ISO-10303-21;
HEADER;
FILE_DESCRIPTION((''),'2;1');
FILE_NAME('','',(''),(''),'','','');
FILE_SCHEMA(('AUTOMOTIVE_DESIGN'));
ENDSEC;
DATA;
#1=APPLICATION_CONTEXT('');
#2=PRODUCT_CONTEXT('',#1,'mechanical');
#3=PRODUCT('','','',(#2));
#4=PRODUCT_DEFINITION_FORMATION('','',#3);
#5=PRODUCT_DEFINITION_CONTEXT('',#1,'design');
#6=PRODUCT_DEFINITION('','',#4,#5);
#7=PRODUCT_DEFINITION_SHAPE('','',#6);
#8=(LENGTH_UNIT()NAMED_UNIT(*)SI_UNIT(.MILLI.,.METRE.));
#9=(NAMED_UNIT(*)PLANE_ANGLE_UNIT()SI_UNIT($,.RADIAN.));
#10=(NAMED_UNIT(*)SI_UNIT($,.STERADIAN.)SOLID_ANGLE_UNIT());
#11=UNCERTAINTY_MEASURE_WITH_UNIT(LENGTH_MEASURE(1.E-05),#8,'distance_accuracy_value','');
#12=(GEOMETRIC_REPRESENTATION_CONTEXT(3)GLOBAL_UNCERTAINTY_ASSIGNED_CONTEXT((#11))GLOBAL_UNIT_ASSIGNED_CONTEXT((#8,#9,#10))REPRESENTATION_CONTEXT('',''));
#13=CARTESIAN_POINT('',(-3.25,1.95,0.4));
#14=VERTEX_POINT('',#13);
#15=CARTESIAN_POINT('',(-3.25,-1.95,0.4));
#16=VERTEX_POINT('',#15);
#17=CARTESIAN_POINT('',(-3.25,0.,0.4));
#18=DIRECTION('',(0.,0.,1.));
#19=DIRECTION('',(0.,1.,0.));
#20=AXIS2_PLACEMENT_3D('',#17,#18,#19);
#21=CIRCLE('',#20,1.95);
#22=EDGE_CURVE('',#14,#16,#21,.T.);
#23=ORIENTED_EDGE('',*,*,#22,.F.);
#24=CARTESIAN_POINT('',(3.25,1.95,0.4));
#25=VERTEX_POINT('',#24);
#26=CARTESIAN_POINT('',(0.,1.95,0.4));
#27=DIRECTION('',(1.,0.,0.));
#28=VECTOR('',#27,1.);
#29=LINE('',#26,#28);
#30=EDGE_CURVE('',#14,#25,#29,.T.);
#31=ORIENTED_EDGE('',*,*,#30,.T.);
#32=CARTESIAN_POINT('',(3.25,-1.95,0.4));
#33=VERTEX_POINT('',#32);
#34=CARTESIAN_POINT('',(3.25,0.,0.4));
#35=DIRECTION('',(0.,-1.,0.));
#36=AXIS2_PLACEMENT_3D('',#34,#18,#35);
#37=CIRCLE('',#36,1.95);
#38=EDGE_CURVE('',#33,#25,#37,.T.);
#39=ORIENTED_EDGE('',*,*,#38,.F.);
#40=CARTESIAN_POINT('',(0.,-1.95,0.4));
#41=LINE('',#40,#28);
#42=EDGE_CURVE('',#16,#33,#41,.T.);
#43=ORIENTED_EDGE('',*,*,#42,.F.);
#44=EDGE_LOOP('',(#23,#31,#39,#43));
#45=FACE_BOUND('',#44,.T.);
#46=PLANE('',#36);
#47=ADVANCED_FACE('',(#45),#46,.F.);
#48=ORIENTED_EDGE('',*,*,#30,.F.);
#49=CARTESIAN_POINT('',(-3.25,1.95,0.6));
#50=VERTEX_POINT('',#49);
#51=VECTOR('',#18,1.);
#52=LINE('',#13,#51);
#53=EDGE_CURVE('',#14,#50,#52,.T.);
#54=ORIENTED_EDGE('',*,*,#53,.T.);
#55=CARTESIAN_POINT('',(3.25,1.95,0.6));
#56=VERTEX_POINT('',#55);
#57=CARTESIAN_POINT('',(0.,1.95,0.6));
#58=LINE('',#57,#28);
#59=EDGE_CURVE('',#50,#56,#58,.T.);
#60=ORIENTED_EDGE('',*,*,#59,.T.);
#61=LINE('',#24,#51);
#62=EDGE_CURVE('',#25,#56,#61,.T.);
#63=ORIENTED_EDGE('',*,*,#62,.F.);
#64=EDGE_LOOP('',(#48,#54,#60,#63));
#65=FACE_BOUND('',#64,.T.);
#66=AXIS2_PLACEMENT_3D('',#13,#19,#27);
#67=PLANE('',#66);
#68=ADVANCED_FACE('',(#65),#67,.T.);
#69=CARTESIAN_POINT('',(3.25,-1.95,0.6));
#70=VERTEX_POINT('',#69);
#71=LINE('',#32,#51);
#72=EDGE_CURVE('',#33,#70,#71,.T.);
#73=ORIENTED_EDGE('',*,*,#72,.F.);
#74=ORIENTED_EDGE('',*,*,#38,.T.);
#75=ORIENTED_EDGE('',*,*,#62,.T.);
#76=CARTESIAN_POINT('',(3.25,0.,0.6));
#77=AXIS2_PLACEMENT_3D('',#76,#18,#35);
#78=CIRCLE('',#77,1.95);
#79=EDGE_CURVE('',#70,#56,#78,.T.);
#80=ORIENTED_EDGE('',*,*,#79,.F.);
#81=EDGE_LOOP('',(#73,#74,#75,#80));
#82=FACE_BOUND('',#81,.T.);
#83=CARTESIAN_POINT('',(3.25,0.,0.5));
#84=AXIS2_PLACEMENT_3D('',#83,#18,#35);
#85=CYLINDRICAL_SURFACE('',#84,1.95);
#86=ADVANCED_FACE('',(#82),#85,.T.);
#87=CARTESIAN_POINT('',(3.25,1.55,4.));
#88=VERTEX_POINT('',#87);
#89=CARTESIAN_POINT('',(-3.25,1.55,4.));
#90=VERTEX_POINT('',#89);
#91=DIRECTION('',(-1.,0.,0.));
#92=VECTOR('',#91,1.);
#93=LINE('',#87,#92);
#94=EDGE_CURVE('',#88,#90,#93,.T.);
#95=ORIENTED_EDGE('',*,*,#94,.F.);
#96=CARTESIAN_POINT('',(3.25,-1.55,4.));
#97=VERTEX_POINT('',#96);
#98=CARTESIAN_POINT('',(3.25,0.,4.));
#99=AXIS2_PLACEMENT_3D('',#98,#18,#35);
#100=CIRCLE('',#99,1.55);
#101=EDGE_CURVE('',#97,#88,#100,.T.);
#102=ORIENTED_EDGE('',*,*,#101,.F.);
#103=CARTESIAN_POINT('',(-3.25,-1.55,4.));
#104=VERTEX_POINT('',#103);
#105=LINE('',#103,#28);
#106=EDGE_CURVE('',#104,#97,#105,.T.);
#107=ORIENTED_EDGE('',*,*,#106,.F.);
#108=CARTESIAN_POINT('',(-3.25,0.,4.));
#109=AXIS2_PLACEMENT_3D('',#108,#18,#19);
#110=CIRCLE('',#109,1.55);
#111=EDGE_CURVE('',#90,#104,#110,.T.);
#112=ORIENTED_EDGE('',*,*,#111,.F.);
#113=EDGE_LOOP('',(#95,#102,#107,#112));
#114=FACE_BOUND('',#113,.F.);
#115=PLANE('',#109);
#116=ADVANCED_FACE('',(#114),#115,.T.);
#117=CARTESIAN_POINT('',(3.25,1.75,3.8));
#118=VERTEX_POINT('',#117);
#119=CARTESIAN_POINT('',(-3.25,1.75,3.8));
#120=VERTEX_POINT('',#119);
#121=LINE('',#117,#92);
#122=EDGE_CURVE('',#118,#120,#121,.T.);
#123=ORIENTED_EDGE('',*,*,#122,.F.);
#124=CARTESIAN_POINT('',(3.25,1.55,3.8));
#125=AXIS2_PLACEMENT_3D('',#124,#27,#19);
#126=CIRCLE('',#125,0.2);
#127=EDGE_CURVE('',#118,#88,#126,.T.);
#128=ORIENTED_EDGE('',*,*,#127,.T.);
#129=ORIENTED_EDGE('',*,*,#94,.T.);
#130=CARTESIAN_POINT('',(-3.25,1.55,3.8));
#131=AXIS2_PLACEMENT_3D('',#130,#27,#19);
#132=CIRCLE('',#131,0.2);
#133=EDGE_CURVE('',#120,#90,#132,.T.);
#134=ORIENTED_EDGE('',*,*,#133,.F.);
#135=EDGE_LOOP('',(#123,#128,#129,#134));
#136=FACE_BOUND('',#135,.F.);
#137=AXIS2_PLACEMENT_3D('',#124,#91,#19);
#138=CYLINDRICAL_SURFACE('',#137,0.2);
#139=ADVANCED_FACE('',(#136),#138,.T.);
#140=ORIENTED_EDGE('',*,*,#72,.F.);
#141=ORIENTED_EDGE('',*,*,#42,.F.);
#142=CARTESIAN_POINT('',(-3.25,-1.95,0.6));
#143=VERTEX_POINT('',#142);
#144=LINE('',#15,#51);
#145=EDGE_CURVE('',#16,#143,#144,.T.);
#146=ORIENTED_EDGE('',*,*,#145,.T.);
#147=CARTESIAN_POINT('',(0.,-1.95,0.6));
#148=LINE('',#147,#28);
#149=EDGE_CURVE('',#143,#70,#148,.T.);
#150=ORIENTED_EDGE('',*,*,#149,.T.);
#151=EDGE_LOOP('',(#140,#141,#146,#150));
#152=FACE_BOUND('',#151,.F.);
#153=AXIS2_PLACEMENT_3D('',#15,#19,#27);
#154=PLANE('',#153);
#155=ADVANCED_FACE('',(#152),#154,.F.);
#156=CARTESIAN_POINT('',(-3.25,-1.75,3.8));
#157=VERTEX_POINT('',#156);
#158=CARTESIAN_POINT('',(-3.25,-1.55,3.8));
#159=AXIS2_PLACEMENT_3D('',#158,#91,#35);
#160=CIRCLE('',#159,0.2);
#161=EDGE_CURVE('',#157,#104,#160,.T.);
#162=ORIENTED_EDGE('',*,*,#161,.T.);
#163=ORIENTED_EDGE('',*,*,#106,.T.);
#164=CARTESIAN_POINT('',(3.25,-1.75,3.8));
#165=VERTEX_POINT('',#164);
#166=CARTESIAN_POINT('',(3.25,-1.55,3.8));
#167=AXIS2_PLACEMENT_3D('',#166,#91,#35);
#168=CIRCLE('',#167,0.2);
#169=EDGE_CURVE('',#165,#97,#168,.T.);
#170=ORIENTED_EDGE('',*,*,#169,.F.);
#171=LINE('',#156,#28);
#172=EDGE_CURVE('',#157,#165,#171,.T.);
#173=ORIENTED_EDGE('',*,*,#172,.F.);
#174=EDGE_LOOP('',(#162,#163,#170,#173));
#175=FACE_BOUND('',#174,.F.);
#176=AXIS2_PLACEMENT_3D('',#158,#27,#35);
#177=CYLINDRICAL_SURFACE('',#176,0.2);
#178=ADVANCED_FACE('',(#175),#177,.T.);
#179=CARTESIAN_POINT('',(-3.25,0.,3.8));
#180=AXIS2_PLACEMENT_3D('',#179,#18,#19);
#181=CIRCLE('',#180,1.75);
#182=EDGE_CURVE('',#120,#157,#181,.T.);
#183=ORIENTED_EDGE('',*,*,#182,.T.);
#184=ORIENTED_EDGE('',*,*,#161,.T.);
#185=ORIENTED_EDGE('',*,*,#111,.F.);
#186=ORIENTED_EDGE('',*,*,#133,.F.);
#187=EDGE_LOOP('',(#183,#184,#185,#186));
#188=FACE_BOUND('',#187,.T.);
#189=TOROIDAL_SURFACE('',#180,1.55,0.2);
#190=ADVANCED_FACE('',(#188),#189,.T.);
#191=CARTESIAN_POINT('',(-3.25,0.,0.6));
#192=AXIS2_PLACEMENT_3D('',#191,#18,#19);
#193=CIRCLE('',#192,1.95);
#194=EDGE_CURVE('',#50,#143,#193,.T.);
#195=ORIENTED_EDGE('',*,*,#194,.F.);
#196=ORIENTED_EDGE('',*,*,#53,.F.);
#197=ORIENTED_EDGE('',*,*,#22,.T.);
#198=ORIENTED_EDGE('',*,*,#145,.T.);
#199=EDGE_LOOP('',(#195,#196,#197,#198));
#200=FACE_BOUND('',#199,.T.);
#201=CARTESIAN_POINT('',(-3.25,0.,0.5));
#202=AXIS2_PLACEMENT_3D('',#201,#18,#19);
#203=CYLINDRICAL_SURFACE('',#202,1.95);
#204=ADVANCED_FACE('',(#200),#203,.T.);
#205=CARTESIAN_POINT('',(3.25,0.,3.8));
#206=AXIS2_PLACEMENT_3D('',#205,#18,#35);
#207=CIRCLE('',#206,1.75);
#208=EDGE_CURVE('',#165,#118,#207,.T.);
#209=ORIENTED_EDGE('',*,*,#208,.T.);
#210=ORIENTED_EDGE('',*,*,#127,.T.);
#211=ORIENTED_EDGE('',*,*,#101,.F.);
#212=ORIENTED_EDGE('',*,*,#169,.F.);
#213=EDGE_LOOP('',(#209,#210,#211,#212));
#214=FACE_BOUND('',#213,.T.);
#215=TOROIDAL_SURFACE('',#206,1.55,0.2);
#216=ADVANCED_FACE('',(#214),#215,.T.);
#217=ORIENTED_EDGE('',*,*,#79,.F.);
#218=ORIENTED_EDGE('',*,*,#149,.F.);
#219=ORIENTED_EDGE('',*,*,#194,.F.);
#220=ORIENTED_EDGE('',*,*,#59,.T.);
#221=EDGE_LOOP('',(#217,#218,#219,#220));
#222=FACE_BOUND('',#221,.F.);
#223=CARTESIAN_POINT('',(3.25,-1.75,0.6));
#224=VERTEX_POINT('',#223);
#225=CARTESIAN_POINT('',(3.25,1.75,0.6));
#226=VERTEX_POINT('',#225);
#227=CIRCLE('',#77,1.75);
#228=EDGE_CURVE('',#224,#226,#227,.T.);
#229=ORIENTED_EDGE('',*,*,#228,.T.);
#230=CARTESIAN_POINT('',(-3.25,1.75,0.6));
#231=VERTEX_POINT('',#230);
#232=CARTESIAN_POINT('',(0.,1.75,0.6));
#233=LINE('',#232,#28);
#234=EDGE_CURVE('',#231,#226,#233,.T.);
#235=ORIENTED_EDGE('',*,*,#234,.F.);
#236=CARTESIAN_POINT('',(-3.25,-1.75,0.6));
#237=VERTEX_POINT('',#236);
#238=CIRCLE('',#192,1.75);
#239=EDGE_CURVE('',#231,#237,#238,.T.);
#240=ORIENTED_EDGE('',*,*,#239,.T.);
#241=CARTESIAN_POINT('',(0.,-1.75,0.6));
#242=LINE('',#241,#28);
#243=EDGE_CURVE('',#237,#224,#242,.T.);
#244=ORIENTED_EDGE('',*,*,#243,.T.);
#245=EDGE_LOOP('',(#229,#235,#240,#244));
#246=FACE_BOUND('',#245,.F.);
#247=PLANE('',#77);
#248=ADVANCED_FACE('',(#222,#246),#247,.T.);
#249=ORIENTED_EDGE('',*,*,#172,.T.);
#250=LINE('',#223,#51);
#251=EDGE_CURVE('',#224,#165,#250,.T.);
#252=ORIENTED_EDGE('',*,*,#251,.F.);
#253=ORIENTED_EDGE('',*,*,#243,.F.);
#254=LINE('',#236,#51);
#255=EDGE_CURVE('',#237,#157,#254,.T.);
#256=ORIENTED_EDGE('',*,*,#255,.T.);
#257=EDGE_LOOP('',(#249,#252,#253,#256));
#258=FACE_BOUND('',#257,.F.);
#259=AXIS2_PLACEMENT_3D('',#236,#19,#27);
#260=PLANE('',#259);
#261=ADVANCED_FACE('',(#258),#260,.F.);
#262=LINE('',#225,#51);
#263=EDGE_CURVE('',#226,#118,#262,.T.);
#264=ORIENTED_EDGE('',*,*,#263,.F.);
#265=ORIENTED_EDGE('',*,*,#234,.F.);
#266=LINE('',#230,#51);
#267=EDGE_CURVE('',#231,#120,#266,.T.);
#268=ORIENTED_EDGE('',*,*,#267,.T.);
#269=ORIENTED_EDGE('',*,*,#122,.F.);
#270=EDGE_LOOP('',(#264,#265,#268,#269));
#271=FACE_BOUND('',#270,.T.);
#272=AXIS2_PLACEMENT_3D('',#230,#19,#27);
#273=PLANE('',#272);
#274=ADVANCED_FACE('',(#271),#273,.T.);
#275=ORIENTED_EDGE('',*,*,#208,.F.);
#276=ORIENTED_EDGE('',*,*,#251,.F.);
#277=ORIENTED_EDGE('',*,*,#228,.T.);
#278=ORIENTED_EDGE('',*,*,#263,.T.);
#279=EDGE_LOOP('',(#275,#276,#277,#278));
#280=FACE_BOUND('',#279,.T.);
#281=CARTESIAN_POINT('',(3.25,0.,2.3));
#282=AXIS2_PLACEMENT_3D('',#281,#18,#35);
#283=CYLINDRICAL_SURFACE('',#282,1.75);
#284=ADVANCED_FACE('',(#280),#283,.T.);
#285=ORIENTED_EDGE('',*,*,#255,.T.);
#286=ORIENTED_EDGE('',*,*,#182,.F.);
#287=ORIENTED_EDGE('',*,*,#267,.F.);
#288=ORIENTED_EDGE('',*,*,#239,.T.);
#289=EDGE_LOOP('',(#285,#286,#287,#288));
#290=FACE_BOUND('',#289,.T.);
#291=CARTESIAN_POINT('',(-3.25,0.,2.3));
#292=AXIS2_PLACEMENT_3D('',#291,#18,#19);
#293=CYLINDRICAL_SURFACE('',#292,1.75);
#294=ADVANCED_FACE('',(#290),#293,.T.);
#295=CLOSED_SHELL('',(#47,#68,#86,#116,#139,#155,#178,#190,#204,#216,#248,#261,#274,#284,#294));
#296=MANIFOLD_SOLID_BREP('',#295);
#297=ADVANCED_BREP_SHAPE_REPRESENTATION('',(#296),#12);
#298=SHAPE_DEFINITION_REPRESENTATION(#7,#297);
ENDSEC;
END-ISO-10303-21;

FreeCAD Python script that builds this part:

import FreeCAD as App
import Part
import Sketcher


def edges_at(feature, points):
    """Names of the edges that pass closest to the given points."""
    edges = feature.Shape.Edges
    near = lambda p: min(range(len(edges)), key=lambda i: edges[i].distToShape(Part.Vertex(*p))[0])
    return sorted({f"Edge{near(p) + 1}" for p in points})

doc = App.newDocument("Part")
params = doc.addObject("Spreadsheet::Sheet", "Params")
for row, (alias, value) in enumerate([
    ("sketch1_height", "3.4 mm"),
    ("sketch1_width", "1.75 mm"),
    ("revolution_angle", "180 deg"),
    ("sketch2_height", "3.4 mm"),
    ("sketch2_width", "1.75 mm"),
    ("revolution2_angle", "180 deg"),
    ("sketch3_width", "6.5 mm"),
    ("sketch3_height", "3.9 mm"),
    ("pad1_length", "0.2 mm"),
    ("sketch4_height", "0.2 mm"),
    ("sketch4_width", "1.95 mm"),
    ("revolution3_angle", "180 deg"),
    ("sketch5_height", "0.2 mm"),
    ("sketch5_width", "1.95 mm"),
    ("revolution4_angle", "180 deg"),
    ("sketch6_width", "6.5 mm"),
    ("sketch6_height", "3.5 mm"),
    ("pad2_length", "3.4 mm"),
    ("fillet_radius", "0.2 mm"),
], start=1):
    params.set(f"A{row}", alias)
    params.set(f"B{row}", "=" + value)
    params.setAlias(f"B{row}", alias)

body = doc.addObject("PartDesign::Body", "Body")

sketch1 = doc.addObject("Sketcher::SketchObject", "Sketch")
body.addObject(sketch1)
sketch1.AttachmentSupport = (doc.YZ_Plane, [""])
sketch1.MapMode = "FlatFace"
sketch1.AttachmentOffset = App.Placement(App.Vector(0, 0, 3.25), App.Rotation())
sketch1.addGeometry([
    Part.LineSegment(App.Vector(0, 4, 0), App.Vector(0, 0.6, 0)),
    Part.LineSegment(App.Vector(0, 0.6, 0), App.Vector(-1.75, 0.6, 0)),
    Part.LineSegment(App.Vector(-1.75, 0.6, 0), App.Vector(-1.75, 4, 0)),
    Part.LineSegment(App.Vector(-1.75, 4, 0), App.Vector(0, 4, 0)),
], False)
sketch1.addConstraint([
    Sketcher.Constraint("Coincident", 0, 2, 1, 1),
    Sketcher.Constraint("Coincident", 1, 2, 2, 1),
    Sketcher.Constraint("Coincident", 2, 2, 3, 1),
    Sketcher.Constraint("Coincident", 3, 2, 0, 1),
    Sketcher.Constraint("Vertical", 0),
    Sketcher.Constraint("Horizontal", 1),
    Sketcher.Constraint("Vertical", 2),
    Sketcher.Constraint("Horizontal", 3),
    Sketcher.Constraint("PointOnObject", 0, 2, -2),
    Sketcher.Constraint("DistanceY", 0, 2, 0, 1, 3.4),
    Sketcher.Constraint("DistanceY", -1, 1, 2, 2, 4.0),
    Sketcher.Constraint("DistanceX", 1, 2, 1, 1, 1.75),
])
sketch1.setExpression("Constraints[9]", "Params.sketch1_height")
sketch1.setExpression("Constraints[11]", "Params.sketch1_width")
revolution = doc.addObject("PartDesign::Revolution", "Revolution")
body.addObject(revolution)
revolution.Profile = sketch1
revolution.ReferenceAxis = (sketch1, ["V_Axis"])
revolution.setExpression("Angle", "Params.revolution_angle")
body2 = doc.addObject("PartDesign::Body", "Body001")

sketch2 = doc.addObject("Sketcher::SketchObject", "Sketch001")
body2.addObject(sketch2)
sketch2.AttachmentSupport = (doc.getObject("YZ_Plane001"), [""])
sketch2.MapMode = "FlatFace"
sketch2.AttachmentOffset = App.Placement(App.Vector(0, 0, -3.25), App.Rotation())
sketch2.addGeometry([
    Part.LineSegment(App.Vector(0, 4, 0), App.Vector(0, 0.6, 0)),
    Part.LineSegment(App.Vector(0, 0.6, 0), App.Vector(1.75, 0.6, 0)),
    Part.LineSegment(App.Vector(1.75, 0.6, 0), App.Vector(1.75, 4, 0)),
    Part.LineSegment(App.Vector(1.75, 4, 0), App.Vector(0, 4, 0)),
], False)
sketch2.addConstraint([
    Sketcher.Constraint("Coincident", 0, 2, 1, 1),
    Sketcher.Constraint("Coincident", 1, 2, 2, 1),
    Sketcher.Constraint("Coincident", 2, 2, 3, 1),
    Sketcher.Constraint("Coincident", 3, 2, 0, 1),
    Sketcher.Constraint("Vertical", 0),
    Sketcher.Constraint("Horizontal", 1),
    Sketcher.Constraint("Vertical", 2),
    Sketcher.Constraint("Horizontal", 3),
    Sketcher.Constraint("PointOnObject", 0, 2, -2),
    Sketcher.Constraint("DistanceY", 0, 2, 0, 1, 3.4),
    Sketcher.Constraint("DistanceY", -1, 1, 2, 2, 4.0),
    Sketcher.Constraint("DistanceX", 1, 1, 1, 2, 1.75),
])
sketch2.setExpression("Constraints[9]", "Params.sketch2_height")
sketch2.setExpression("Constraints[11]", "Params.sketch2_width")
revolution2 = doc.addObject("PartDesign::Revolution", "Revolution001")
body2.addObject(revolution2)
revolution2.Profile = sketch2
revolution2.ReferenceAxis = (sketch2, ["V_Axis"])
revolution2.setExpression("Angle", "Params.revolution2_angle")
body3 = doc.addObject("PartDesign::Body", "Body002")

sketch3 = doc.addObject("Sketcher::SketchObject", "Sketch002")
body3.addObject(sketch3)
sketch3.AttachmentSupport = (doc.getObject("XY_Plane002"), [""])
sketch3.MapMode = "FlatFace"
sketch3.AttachmentOffset = App.Placement(App.Vector(0, 0, 0.4), App.Rotation())
sketch3.addGeometry([
    Part.LineSegment(App.Vector(-3.25, 1.95, 0), App.Vector(-3.25, -1.95, 0)),
    Part.LineSegment(App.Vector(-3.25, -1.95, 0), App.Vector(3.25, -1.95, 0)),
    Part.LineSegment(App.Vector(3.25, -1.95, 0), App.Vector(3.25, 1.95, 0)),
    Part.LineSegment(App.Vector(3.25, 1.95, 0), App.Vector(-3.25, 1.95, 0)),
], False)
sketch3.addConstraint([
    Sketcher.Constraint("Coincident", 0, 2, 1, 1),
    Sketcher.Constraint("Coincident", 1, 2, 2, 1),
    Sketcher.Constraint("Coincident", 2, 2, 3, 1),
    Sketcher.Constraint("Coincident", 3, 2, 0, 1),
    Sketcher.Constraint("Vertical", 0),
    Sketcher.Constraint("Horizontal", 1),
    Sketcher.Constraint("Vertical", 2),
    Sketcher.Constraint("Horizontal", 3),
    Sketcher.Constraint("Symmetric", 0, 2, 2, 2, -1, 1),
    Sketcher.Constraint("DistanceX", 1, 1, 1, 2, 6.5),
    Sketcher.Constraint("DistanceY", 0, 2, 0, 1, 3.9),
])
sketch3.setExpression("Constraints[9]", "Params.sketch3_width")
sketch3.setExpression("Constraints[10]", "Params.sketch3_height")
pad1 = doc.addObject("PartDesign::Pad", "Pad")
body3.addObject(pad1)
pad1.Profile = sketch3
pad1.setExpression("Length", "Params.pad1_length")
body4 = doc.addObject("PartDesign::Body", "Body003")

sketch4 = doc.addObject("Sketcher::SketchObject", "Sketch003")
body4.addObject(sketch4)
sketch4.AttachmentSupport = (doc.getObject("YZ_Plane003"), [""])
sketch4.MapMode = "FlatFace"
sketch4.AttachmentOffset = App.Placement(App.Vector(0, 0, -3.25), App.Rotation())
sketch4.addGeometry([
    Part.LineSegment(App.Vector(0, 0.6, 0), App.Vector(0, 0.4, 0)),
    Part.LineSegment(App.Vector(0, 0.4, 0), App.Vector(1.95, 0.4, 0)),
    Part.LineSegment(App.Vector(1.95, 0.4, 0), App.Vector(1.95, 0.6, 0)),
    Part.LineSegment(App.Vector(1.95, 0.6, 0), App.Vector(0, 0.6, 0)),
], False)
sketch4.addConstraint([
    Sketcher.Constraint("Coincident", 0, 2, 1, 1),
    Sketcher.Constraint("Coincident", 1, 2, 2, 1),
    Sketcher.Constraint("Coincident", 2, 2, 3, 1),
    Sketcher.Constraint("Coincident", 3, 2, 0, 1),
    Sketcher.Constraint("Vertical", 0),
    Sketcher.Constraint("Horizontal", 1),
    Sketcher.Constraint("Vertical", 2),
    Sketcher.Constraint("Horizontal", 3),
    Sketcher.Constraint("PointOnObject", 0, 2, -2),
    Sketcher.Constraint("DistanceY", 0, 2, 0, 1, 0.2),
    Sketcher.Constraint("DistanceX", 1, 1, 1, 2, 1.95),
    Sketcher.Constraint("DistanceY", -1, 1, 0, 2, 0.4),
])
sketch4.setExpression("Constraints[9]", "Params.sketch4_height")
sketch4.setExpression("Constraints[10]", "Params.sketch4_width")
revolution3 = doc.addObject("PartDesign::Revolution", "Revolution002")
body4.addObject(revolution3)
revolution3.Profile = sketch4
revolution3.ReferenceAxis = (sketch4, ["V_Axis"])
revolution3.setExpression("Angle", "Params.revolution3_angle")
body5 = doc.addObject("PartDesign::Body", "Body004")

sketch5 = doc.addObject("Sketcher::SketchObject", "Sketch004")
body5.addObject(sketch5)
sketch5.AttachmentSupport = (doc.getObject("YZ_Plane004"), [""])
sketch5.MapMode = "FlatFace"
sketch5.AttachmentOffset = App.Placement(App.Vector(0, 0, 3.25), App.Rotation())
sketch5.addGeometry([
    Part.LineSegment(App.Vector(0, 0.6, 0), App.Vector(0, 0.4, 0)),
    Part.LineSegment(App.Vector(0, 0.4, 0), App.Vector(-1.95, 0.4, 0)),
    Part.LineSegment(App.Vector(-1.95, 0.4, 0), App.Vector(-1.95, 0.6, 0)),
    Part.LineSegment(App.Vector(-1.95, 0.6, 0), App.Vector(0, 0.6, 0)),
], False)
sketch5.addConstraint([
    Sketcher.Constraint("Coincident", 0, 2, 1, 1),
    Sketcher.Constraint("Coincident", 1, 2, 2, 1),
    Sketcher.Constraint("Coincident", 2, 2, 3, 1),
    Sketcher.Constraint("Coincident", 3, 2, 0, 1),
    Sketcher.Constraint("Vertical", 0),
    Sketcher.Constraint("Horizontal", 1),
    Sketcher.Constraint("Vertical", 2),
    Sketcher.Constraint("Horizontal", 3),
    Sketcher.Constraint("PointOnObject", 0, 2, -2),
    Sketcher.Constraint("DistanceY", 0, 2, 0, 1, 0.2),
    Sketcher.Constraint("DistanceX", 1, 2, 1, 1, 1.95),
    Sketcher.Constraint("DistanceY", -1, 1, 0, 2, 0.4),
])
sketch5.setExpression("Constraints[9]", "Params.sketch5_height")
sketch5.setExpression("Constraints[10]", "Params.sketch5_width")
revolution4 = doc.addObject("PartDesign::Revolution", "Revolution003")
body5.addObject(revolution4)
revolution4.Profile = sketch5
revolution4.ReferenceAxis = (sketch5, ["V_Axis"])
revolution4.setExpression("Angle", "Params.revolution4_angle")
body6 = doc.addObject("PartDesign::Body", "Body005")

sketch6 = doc.addObject("Sketcher::SketchObject", "Sketch005")
body6.addObject(sketch6)
sketch6.AttachmentSupport = (doc.getObject("XY_Plane005"), [""])
sketch6.MapMode = "FlatFace"
sketch6.AttachmentOffset = App.Placement(App.Vector(0, 0, 0.6), App.Rotation())
sketch6.addGeometry([
    Part.LineSegment(App.Vector(-3.25, 1.75, 0), App.Vector(-3.25, -1.75, 0)),
    Part.LineSegment(App.Vector(-3.25, -1.75, 0), App.Vector(3.25, -1.75, 0)),
    Part.LineSegment(App.Vector(3.25, -1.75, 0), App.Vector(3.25, 1.75, 0)),
    Part.LineSegment(App.Vector(3.25, 1.75, 0), App.Vector(-3.25, 1.75, 0)),
], False)
sketch6.addConstraint([
    Sketcher.Constraint("Coincident", 0, 2, 1, 1),
    Sketcher.Constraint("Coincident", 1, 2, 2, 1),
    Sketcher.Constraint("Coincident", 2, 2, 3, 1),
    Sketcher.Constraint("Coincident", 3, 2, 0, 1),
    Sketcher.Constraint("Vertical", 0),
    Sketcher.Constraint("Horizontal", 1),
    Sketcher.Constraint("Vertical", 2),
    Sketcher.Constraint("Horizontal", 3),
    Sketcher.Constraint("Symmetric", 0, 2, 2, 2, -1, 1),
    Sketcher.Constraint("DistanceX", 1, 1, 1, 2, 6.5),
    Sketcher.Constraint("DistanceY", 0, 2, 0, 1, 3.5),
])
sketch6.setExpression("Constraints[9]", "Params.sketch6_width")
sketch6.setExpression("Constraints[10]", "Params.sketch6_height")
pad2 = doc.addObject("PartDesign::Pad", "Pad001")
body6.addObject(pad2)
pad2.Profile = sketch6
pad2.setExpression("Length", "Params.pad2_length")
doc.recompute()

boolean = doc.addObject("PartDesign::Boolean", "Boolean")
body6.addObject(boolean)
boolean.Type = "Fuse"
boolean.addObjects([body])
doc.recompute()

boolean2 = doc.addObject("PartDesign::Boolean", "Boolean001")
body6.addObject(boolean2)
boolean2.Type = "Fuse"
boolean2.addObjects([body2])
doc.recompute()

boolean3 = doc.addObject("PartDesign::Boolean", "Boolean002")
body6.addObject(boolean3)
boolean3.Type = "Fuse"
boolean3.addObjects([body3])
doc.recompute()

boolean4 = doc.addObject("PartDesign::Boolean", "Boolean003")
body6.addObject(boolean4)
boolean4.Type = "Fuse"
boolean4.addObjects([body4])
doc.recompute()

boolean5 = doc.addObject("PartDesign::Boolean", "Boolean004")
body6.addObject(boolean5)
boolean5.Type = "Fuse"
boolean5.addObjects([body5])
doc.recompute()

fillet = doc.addObject("PartDesign::Fillet", "Fillet")
body6.addObject(fillet)
fillet.Base = (boolean5, edges_at(boolean5, [
    (0, -1.75, 4),
    (5, 0, 4),
    (0, 1.75, 4),
    (-5, 0, 4),
]))
fillet.setExpression("Radius", "Params.fillet_radius")

doc.recompute()
